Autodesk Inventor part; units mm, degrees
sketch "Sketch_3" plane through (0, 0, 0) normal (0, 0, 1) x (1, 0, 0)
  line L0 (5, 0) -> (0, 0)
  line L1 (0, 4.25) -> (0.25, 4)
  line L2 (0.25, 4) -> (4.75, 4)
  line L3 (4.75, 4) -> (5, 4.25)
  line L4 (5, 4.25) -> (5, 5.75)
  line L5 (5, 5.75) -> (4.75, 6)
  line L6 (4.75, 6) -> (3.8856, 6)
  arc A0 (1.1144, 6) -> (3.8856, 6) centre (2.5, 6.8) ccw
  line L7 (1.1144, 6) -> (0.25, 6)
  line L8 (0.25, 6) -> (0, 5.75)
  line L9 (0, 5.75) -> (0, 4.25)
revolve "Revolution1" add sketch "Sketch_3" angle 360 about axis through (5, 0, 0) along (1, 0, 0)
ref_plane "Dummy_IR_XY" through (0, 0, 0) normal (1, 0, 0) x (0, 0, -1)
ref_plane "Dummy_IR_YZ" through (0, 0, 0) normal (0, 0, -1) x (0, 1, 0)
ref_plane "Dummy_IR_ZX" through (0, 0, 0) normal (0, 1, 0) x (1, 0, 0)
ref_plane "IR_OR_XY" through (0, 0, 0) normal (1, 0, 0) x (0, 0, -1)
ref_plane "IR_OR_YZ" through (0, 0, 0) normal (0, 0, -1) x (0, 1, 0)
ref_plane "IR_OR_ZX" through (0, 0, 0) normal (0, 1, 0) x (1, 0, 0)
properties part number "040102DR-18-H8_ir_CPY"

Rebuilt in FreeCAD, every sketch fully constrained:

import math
import FreeCAD as App
import Part
import Sketcher
Q = App.Units.Quantity

doc = App.newDocument("Part")
body = doc.addObject("PartDesign::Body", "Body")

# Sketch on XY plane
sketch1 = body.newObject("Sketcher::SketchObject", "Sketch")
sketch1.AttachmentSupport = (doc.getObject("XY_Plane"), [""])
sketch1.MapMode = "FlatFace"
sketch1.addGeometry([
    Part.LineSegment(App.Vector(0, 5.75, 0), App.Vector(0, 4.25, 0)),  # 0
    Part.LineSegment(App.Vector(0, 4.25, 0), App.Vector(0.25, 4, 0)),  # 1
    Part.LineSegment(App.Vector(0.25, 4, 0), App.Vector(4.75, 4, 0)),  # 2
    Part.LineSegment(App.Vector(4.75, 4, 0), App.Vector(5, 4.25, 0)),  # 3
    Part.LineSegment(App.Vector(5, 4.25, 0), App.Vector(5, 5.75, 0)),  # 4
    Part.LineSegment(App.Vector(5, 5.75, 0), App.Vector(4.75, 6, 0)),  # 5
    Part.LineSegment(App.Vector(4.75, 6, 0), App.Vector(3.89, 6, 0)),  # 6
    Part.ArcOfCircle(Part.Circle(App.Vector(2.5, 6.8, 0), App.Vector(0, 0, 1), 1.6), math.radians(-150), math.radians(-30)),  # 7
    Part.LineSegment(App.Vector(1.11, 6, 0), App.Vector(0.25, 6, 0)),  # 8
    Part.LineSegment(App.Vector(0.25, 6, 0), App.Vector(0, 5.75, 0)),  # 9
], False)
sketch1.addConstraint([
    Sketcher.Constraint("Coincident", 0, 2, 1, 1),
    Sketcher.Constraint("Coincident", 1, 2, 2, 1),
    Sketcher.Constraint("Coincident", 2, 2, 3, 1),
    Sketcher.Constraint("Coincident", 3, 2, 4, 1),
    Sketcher.Constraint("Coincident", 4, 2, 5, 1),
    Sketcher.Constraint("Coincident", 5, 2, 6, 1),
    Sketcher.Constraint("Coincident", 6, 2, 7, 2),
    Sketcher.Constraint("Coincident", 7, 1, 8, 1),
    Sketcher.Constraint("Coincident", 8, 2, 9, 1),
    Sketcher.Constraint("Coincident", 9, 2, 0, 1),
    Sketcher.Constraint("Vertical", 0),
    Sketcher.Constraint("Horizontal", 2),
    Sketcher.Constraint("Vertical", 4),
    Sketcher.Constraint("Horizontal", 6),
    Sketcher.Constraint("Horizontal", 8),
    Sketcher.Constraint("PointOnObject", 0, 2, -2),
    Sketcher.Constraint("Perpendicular", 1, 3),
    Sketcher.Constraint("Perpendicular", 3, 5),
    Sketcher.Constraint("Perpendicular", 5, 9),
    Sketcher.Constraint("Horizontal", 0, 2, 3, 2),
    Sketcher.Constraint("Horizontal", 6, 2, 7, 1),
    Sketcher.Constraint("Horizontal", 4, 2, 9, 2),
    Sketcher.Constraint("Vertical", 2, 2, 5, 2),
    Sketcher.Constraint("Vertical", 1, 2, 8, 2),
    Sketcher.Constraint("Equal", 6, 8),
    Sketcher.Constraint("Radius", 7, Q("1.6 mm")),
    Sketcher.Constraint("DistanceX", 2, 1, 2, 2, Q("4.5 mm")),
    Sketcher.Constraint("DistanceY", 0, 2, 0, 1, Q("1.5 mm")),
    Sketcher.Constraint("DistanceY", -1, 1, 1, 2, Q("4 mm")),
    Sketcher.Constraint("DistanceX", -1, 1, 3, 2, Q("5 mm")),
    Sketcher.Constraint("DistanceY", -1, 1, 7, 3, Q("6.8 mm")),
])
revolution = body.newObject("PartDesign::Revolution", "Revolution")
revolution.Profile = sketch1
revolution.ReferenceAxis = (sketch1, ["H_Axis"])
revolution.Angle = 360

doc.recompute()
